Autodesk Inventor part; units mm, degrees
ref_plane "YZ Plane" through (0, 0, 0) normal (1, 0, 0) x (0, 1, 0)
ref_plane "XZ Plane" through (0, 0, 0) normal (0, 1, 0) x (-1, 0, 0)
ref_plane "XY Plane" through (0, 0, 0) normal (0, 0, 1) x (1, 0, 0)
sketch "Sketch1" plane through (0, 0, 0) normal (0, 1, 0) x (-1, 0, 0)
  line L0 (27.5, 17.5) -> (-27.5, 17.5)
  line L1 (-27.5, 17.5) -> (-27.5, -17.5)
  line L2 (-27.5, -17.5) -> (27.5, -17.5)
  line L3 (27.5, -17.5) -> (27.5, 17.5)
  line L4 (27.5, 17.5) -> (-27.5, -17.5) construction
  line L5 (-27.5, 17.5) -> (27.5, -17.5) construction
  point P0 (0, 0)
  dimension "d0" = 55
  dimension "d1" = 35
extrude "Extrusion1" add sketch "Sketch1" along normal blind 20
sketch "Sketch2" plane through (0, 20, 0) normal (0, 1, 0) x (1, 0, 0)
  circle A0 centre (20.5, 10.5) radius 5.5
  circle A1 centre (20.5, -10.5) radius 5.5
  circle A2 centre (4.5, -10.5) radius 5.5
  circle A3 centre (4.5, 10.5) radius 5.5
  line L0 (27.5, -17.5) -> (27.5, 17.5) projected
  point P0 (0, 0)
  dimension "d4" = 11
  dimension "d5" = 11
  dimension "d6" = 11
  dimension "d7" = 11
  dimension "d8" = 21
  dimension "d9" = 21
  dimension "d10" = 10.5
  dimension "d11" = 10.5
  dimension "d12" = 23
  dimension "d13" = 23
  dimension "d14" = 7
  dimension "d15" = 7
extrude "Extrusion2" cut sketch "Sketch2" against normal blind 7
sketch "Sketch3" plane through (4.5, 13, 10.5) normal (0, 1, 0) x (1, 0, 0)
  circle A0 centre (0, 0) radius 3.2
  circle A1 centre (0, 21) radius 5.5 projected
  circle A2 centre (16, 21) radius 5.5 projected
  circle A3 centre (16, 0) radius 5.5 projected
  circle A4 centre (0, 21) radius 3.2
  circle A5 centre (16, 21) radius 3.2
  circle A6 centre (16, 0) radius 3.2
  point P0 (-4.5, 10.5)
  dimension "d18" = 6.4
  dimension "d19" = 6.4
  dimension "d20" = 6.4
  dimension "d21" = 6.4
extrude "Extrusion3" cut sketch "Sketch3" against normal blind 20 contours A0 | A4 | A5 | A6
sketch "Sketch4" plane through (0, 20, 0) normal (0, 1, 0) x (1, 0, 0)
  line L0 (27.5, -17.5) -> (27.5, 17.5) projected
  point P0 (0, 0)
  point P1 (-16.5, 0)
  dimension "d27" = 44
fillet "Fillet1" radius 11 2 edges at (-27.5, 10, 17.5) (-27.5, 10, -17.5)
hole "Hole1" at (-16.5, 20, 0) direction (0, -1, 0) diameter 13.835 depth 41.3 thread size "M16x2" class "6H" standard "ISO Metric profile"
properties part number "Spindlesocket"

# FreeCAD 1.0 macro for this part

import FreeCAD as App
import Part
import Sketcher

V = App.Vector
Q = App.Units.Quantity


def edges_at(feature, points):
    """Names of the edges that pass closest to the given points."""
    edges = feature.Shape.Edges
    near = lambda p: min(range(len(edges)), key=lambda i: edges[i].distToShape(Part.Vertex(*p))[0])
    return sorted({f"Edge{near(p) + 1}" for p in points})


def add_polygon(sketch, points):
    """Adds a closed chain of lines whose ends are joined by coincident constraints."""
    first, n = sketch.GeometryCount, len(points)
    for a, b in zip(points, points[1:] + points[:1]):
        sketch.addGeometry(Part.LineSegment(App.Vector(*a, 0), App.Vector(*b, 0)), False)
    for i in range(n):
        sketch.addConstraint(Sketcher.Constraint("Coincident", first + i, 2, first + (i + 1) % n, 1))

doc = App.newDocument("Part")
params = doc.addObject("Spreadsheet::Sheet", "Params")
for row, (alias, value) in enumerate([
    ("sketch1_width", "55 mm"),
    ("sketch1_height", "35 mm"),
    ("pad1_length", "20 mm"),
    ("sketch2_diameter", "11 mm"),
    ("pocket1_length", "7 mm"),
    ("sketch3_diameter", "6.4 mm"),
    ("pocket2_length", "20 mm"),
    ("fillet_radius", "11 mm"),
    ("hole_diameter", "13.835 mm"),
    ("hole_depth", "41.3 mm"),
], start=1):
    params.set(f"A{row}", alias)
    params.set(f"B{row}", "=" + value)
    params.setAlias(f"B{row}", alias)

body = doc.addObject("PartDesign::Body", "Body")

# Sketch on XZ plane
sketch1 = body.newObject("Sketcher::SketchObject", "Sketch")
sketch1.AttachmentSupport = (doc.getObject("XZ_Plane"), [""])
sketch1.MapMode = "FlatFace"
add_polygon(sketch1, [(-28, -18), (-28, 18), (28, 18), (28, -18)])  # lines 0-3
sketch1.addConstraint([
    Sketcher.Constraint("Vertical", 0),
    Sketcher.Constraint("Horizontal", 1),
    Sketcher.Constraint("Vertical", 2),
    Sketcher.Constraint("Horizontal", 3),
    Sketcher.Constraint("Symmetric", 0, 2, 2, 2, -1, 1),
    Sketcher.Constraint("DistanceX", 1, 1, 1, 2, Q("55 mm")),
    Sketcher.Constraint("DistanceY", 0, 1, 0, 2, Q("35 mm")),
])
sketch1.setExpression("Constraints[9]", "Params.sketch1_width")
sketch1.setExpression("Constraints[10]", "Params.sketch1_height")
pad1 = body.newObject("PartDesign::Pad", "Pad")
pad1.Profile = sketch1
pad1.setExpression("Length", "Params.pad1_length")
pad1.Reversed = True

# Sketch on XZ plane
sketch2 = body.newObject("Sketcher::SketchObject", "Sketch001")
sketch2.AttachmentSupport = (doc.getObject("XZ_Plane"), [""])
sketch2.MapMode = "FlatFace"
sketch2.AttachmentOffset = App.Placement(V(0, 0, -20), App.Rotation())
sketch2.addGeometry([
    Part.Circle(V(20, -10, 0), V(0, 0, 1), 6),
    Part.Circle(V(20, 10, 0), V(0, 0, 1), 6),
    Part.Circle(V(4, 10, 0), V(0, 0, 1), 6),
    Part.Circle(V(4, -10, 0), V(0, 0, 1), 6),
], False)
sketch2.addConstraint([
    Sketcher.Constraint("Equal", 0, 1),
    Sketcher.Constraint("Equal", 1, 2),
    Sketcher.Constraint("Equal", 2, 3),
    Sketcher.Constraint("Symmetric", 0, 3, 1, 3, -1),
    Sketcher.Constraint("Symmetric", 2, 3, 3, 3, -1),
    Sketcher.Constraint("Horizontal", 1, 3, 2, 3),
    Sketcher.Constraint("Diameter", 0, Q("11 mm")),
    Sketcher.Constraint("DistanceY", 0, 3, 1, 3, Q("21 mm")),
    Sketcher.Constraint("DistanceX", 2, 3, 1, 3, Q("16 mm")),
    Sketcher.Constraint("DistanceX", -1, 1, 0, 3, Q("20.5 mm")),
])
sketch2.setExpression("Constraints[6]", "Params.sketch2_diameter")
pocket1 = body.newObject("PartDesign::Pocket", "Pocket")
pocket1.Profile = sketch2
pocket1.setExpression("Length", "Params.pocket1_length")
pocket1.Reversed = True

# Sketch on XZ plane
sketch3 = body.newObject("Sketcher::SketchObject", "Sketch002")
sketch3.AttachmentSupport = (doc.getObject("XZ_Plane"), [""])
sketch3.MapMode = "FlatFace"
sketch3.AttachmentOffset = App.Placement(V(0, 0, -13), App.Rotation())
sketch3.addGeometry([
    Part.Circle(V(4.5, 10.5, 0), V(0, 0, 1), 3.2),
    Part.Circle(V(4.5, -10.5, 0), V(0, 0, 1), 3.2),
    Part.Circle(V(20.5, -10.5, 0), V(0, 0, 1), 3.2),
    Part.Circle(V(20.5, 10.5, 0), V(0, 0, 1), 3.2),
], False)
sketch3.addConstraint([
    Sketcher.Constraint("Equal", 0, 1),
    Sketcher.Constraint("Equal", 1, 2),
    Sketcher.Constraint("Equal", 2, 3),
    Sketcher.Constraint("Symmetric", 0, 3, 1, 3, -1),
    Sketcher.Constraint("Symmetric", 2, 3, 3, 3, -1),
    Sketcher.Constraint("Horizontal", 1, 3, 2, 3),
    Sketcher.Constraint("Diameter", 0, Q("6.4 mm")),
    Sketcher.Constraint("DistanceY", 1, 3, 0, 3, Q("21 mm")),
    Sketcher.Constraint("DistanceX", 1, 3, 2, 3, Q("16 mm")),
    Sketcher.Constraint("DistanceX", -1, 1, 0, 3, Q("4.5 mm")),
])
sketch3.setExpression("Constraints[6]", "Params.sketch3_diameter")
pocket2 = body.newObject("PartDesign::Pocket", "Pocket001")
pocket2.Profile = sketch3
pocket2.setExpression("Length", "Params.pocket2_length")
pocket2.Reversed = True
doc.recompute()

fillet = body.newObject("PartDesign::Fillet", "Fillet")
fillet.Base = (pocket2, edges_at(pocket2, [(-27.5, 10, 17.5), (-27.5, 10, -17.5)]))
fillet.setExpression("Radius", "Params.fillet_radius")

# Sketch on XZ plane
sketch4 = body.newObject("Sketcher::SketchObject", "Sketch003")
sketch4.AttachmentSupport = (doc.getObject("XZ_Plane"), [""])
sketch4.MapMode = "FlatFace"
sketch4.AttachmentOffset = App.Placement(V(0, 0, -20), App.Rotation())
sketch4.addGeometry(Part.Circle(V(-16, 0, 0), V(0, 0, 1), 7), False)
sketch4.addConstraint([
    Sketcher.Constraint("PointOnObject", 0, 3, -1),
    Sketcher.Constraint("Diameter", 0, Q("13.835 mm")),
    Sketcher.Constraint("DistanceX", 0, 3, -1, 1, Q("16.5 mm")),
])
doc.recompute()
hole = body.newObject("PartDesign::Hole", "Hole")
hole.Profile = sketch4
hole.ThreadType = "None"
hole.setExpression("Diameter", "Params.hole_diameter")
hole.DepthType = "Dimension"
hole.setExpression("Depth", "Params.hole_depth")
hole.DrillPoint = "Flat"
hole.Reversed = True

doc.recompute()
